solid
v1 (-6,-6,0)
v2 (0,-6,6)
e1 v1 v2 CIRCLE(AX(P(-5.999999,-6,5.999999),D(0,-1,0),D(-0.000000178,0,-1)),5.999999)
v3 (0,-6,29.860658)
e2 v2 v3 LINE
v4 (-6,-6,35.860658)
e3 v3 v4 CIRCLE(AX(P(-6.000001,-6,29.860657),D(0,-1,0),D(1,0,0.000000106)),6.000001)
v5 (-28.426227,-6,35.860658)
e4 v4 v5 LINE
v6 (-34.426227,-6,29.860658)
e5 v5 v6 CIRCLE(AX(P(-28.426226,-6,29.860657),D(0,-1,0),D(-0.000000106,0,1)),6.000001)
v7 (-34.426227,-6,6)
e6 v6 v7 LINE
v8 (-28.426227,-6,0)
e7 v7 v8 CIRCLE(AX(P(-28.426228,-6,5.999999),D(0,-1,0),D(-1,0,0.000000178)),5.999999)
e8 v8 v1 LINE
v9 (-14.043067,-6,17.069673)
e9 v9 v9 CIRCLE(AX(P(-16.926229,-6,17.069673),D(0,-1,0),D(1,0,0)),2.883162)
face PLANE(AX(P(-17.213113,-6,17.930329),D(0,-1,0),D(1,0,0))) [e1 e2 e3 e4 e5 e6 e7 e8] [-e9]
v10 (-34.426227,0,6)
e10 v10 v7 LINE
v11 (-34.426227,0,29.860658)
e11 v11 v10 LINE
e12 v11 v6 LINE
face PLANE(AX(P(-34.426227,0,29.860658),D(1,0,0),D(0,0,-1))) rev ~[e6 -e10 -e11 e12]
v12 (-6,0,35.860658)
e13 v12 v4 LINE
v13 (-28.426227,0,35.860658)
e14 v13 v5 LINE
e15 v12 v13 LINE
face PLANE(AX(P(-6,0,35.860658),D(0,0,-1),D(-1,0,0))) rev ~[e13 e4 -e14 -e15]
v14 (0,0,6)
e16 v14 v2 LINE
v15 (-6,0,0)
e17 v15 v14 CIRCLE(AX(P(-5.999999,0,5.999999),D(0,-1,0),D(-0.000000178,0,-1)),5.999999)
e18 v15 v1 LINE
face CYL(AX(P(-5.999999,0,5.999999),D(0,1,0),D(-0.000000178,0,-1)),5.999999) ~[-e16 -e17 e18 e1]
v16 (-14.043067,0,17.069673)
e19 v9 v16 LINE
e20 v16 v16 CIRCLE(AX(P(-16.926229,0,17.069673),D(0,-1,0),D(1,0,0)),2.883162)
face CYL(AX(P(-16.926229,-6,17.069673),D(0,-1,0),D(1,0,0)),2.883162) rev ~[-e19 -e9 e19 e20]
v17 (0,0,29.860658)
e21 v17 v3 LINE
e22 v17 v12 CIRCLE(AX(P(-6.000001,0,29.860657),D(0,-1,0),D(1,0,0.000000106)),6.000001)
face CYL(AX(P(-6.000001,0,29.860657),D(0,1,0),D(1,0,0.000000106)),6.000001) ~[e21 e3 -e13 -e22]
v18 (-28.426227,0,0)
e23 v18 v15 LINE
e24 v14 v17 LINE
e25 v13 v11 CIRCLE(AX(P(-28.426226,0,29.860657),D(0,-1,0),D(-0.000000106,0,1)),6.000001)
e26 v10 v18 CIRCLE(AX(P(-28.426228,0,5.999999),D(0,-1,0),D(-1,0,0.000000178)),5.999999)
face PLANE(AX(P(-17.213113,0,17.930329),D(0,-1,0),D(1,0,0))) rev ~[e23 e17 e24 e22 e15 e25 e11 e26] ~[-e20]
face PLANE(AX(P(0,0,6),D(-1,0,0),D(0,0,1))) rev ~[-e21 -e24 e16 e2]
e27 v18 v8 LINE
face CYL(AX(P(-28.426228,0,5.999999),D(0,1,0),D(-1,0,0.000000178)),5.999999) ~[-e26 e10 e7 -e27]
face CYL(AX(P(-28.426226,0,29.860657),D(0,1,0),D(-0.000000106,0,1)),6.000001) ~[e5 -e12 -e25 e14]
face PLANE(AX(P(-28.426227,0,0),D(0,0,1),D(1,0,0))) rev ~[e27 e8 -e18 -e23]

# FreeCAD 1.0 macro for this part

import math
import FreeCAD as App
import Part
import Sketcher
Q = App.Units.Quantity

doc = App.newDocument("Part")
body = doc.addObject("PartDesign::Body", "Body")

# Sketch on XZ plane
sketch1 = body.newObject("Sketcher::SketchObject", "Sketch")
sketch1.AttachmentSupport = (doc.getObject("XZ_Plane"), [""])
sketch1.MapMode = "FlatFace"
sketch1.addGeometry([
    Part.LineSegment(App.Vector(-28, 0, 0), App.Vector(-6, 0, 0)),  # 0
    Part.ArcOfCircle(Part.Circle(App.Vector(-6, 6, 0), App.Vector(0, 0, 1), 6), math.radians(-90), math.radians(0)),  # 1
    Part.LineSegment(App.Vector(0, 6, 0), App.Vector(0, 30, 0)),  # 2
    Part.ArcOfCircle(Part.Circle(App.Vector(-6, 30, 0), App.Vector(0, 0, 1), 6), math.radians(0), math.radians(90)),  # 3
    Part.LineSegment(App.Vector(-6, 36, 0), App.Vector(-28, 36, 0)),  # 4
    Part.ArcOfCircle(Part.Circle(App.Vector(-28, 30, 0), App.Vector(0, 0, 1), 6), math.radians(90), math.radians(180)),  # 5
    Part.LineSegment(App.Vector(-34, 30, 0), App.Vector(-34, 6, 0)),  # 6
    Part.ArcOfCircle(Part.Circle(App.Vector(-28, 6, 0), App.Vector(0, 0, 1), 6), math.radians(180), math.radians(270)),  # 7
], False)
sketch1.addConstraint([
    Sketcher.Constraint("Tangent", 0, 2, 1, 1),
    Sketcher.Constraint("Tangent", 1, 2, 2, 1),
    Sketcher.Constraint("Tangent", 2, 2, 3, 1),
    Sketcher.Constraint("Tangent", 3, 2, 4, 1),
    Sketcher.Constraint("Tangent", 4, 2, 5, 1),
    Sketcher.Constraint("Tangent", 5, 2, 6, 1),
    Sketcher.Constraint("Tangent", 6, 2, 7, 1),
    Sketcher.Constraint("Tangent", 7, 2, 0, 1),
    Sketcher.Constraint("Horizontal", 0),
    Sketcher.Constraint("Vertical", 2),
    Sketcher.Constraint("Horizontal", 4),
    Sketcher.Constraint("Vertical", 6),
    Sketcher.Constraint("Equal", 1, 3),
    Sketcher.Constraint("Equal", 3, 5),
    Sketcher.Constraint("Equal", 5, 7),
    Sketcher.Constraint("PointOnObject", 0, 2, -1),
    Sketcher.Constraint("PointOnObject", 1, 2, -2),
    Sketcher.Constraint("Radius", 1, Q("5.999999 mm")),
    Sketcher.Constraint("DistanceY", 2, 1, 2, 2, Q("23.860658 mm")),
    Sketcher.Constraint("DistanceX", 0, 1, 0, 2, Q("22.426227 mm")),
])
pad1 = body.newObject("PartDesign::Pad", "Pad")
pad1.Profile = sketch1
pad1.Length = 6

# Sketch on XZ plane
sketch2 = body.newObject("Sketcher::SketchObject", "Sketch001")
sketch2.AttachmentSupport = (doc.getObject("XZ_Plane"), [""])
sketch2.MapMode = "FlatFace"
sketch2.AttachmentOffset = App.Placement(App.Vector(0, 0, 6), App.Rotation())
sketch2.addGeometry(Part.Circle(App.Vector(-16.9, 17.1, 0), App.Vector(0, 0, 1), 2.9), False)
sketch2.addConstraint([
    Sketcher.Constraint("Diameter", 0, Q("5.766324 mm")),
    Sketcher.Constraint("DistanceX", 0, 3, -1, 1, Q("16.926229 mm")),
    Sketcher.Constraint("DistanceY", -1, 1, 0, 3, Q("17.069673 mm")),
])
pocket1 = body.newObject("PartDesign::Pocket", "Pocket")
pocket1.Profile = sketch2
pocket1.Length = 30

doc.recompute()
